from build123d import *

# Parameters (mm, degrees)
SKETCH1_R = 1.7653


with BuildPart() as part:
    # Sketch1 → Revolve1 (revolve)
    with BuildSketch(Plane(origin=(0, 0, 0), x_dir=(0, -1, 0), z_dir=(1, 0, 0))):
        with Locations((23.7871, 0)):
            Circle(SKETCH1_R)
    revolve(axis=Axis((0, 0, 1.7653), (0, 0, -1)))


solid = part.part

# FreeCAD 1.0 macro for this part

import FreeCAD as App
import Part
import Sketcher
Q = App.Units.Quantity

doc = App.newDocument("Part")
body = doc.addObject("PartDesign::Body", "Body")

# Sketch on YZ plane
sketch1 = body.newObject("Sketcher::SketchObject", "Sketch")
sketch1.AttachmentSupport = (doc.getObject("YZ_Plane"), [""])
sketch1.MapMode = "FlatFace"
sketch1.addGeometry(Part.Circle(App.Vector(-23.8, 0, 0), App.Vector(0, 0, 1), 1.8), False)
sketch1.addConstraint(Sketcher.Constraint("PointOnObject", 0, 3, -1))
sketch1.addConstraint(Sketcher.Constraint("Diameter", 0, Q("0.139 in")))
sketch1.addConstraint(Sketcher.Constraint("DistanceX", 0, 3, -1, 1, Q("0.9365 in")))
revolution = body.newObject("PartDesign::Revolution", "Revolution")
revolution.Profile = sketch1
revolution.ReferenceAxis = (sketch1, ["V_Axis"])
revolution.Angle = 360

doc.recompute()
